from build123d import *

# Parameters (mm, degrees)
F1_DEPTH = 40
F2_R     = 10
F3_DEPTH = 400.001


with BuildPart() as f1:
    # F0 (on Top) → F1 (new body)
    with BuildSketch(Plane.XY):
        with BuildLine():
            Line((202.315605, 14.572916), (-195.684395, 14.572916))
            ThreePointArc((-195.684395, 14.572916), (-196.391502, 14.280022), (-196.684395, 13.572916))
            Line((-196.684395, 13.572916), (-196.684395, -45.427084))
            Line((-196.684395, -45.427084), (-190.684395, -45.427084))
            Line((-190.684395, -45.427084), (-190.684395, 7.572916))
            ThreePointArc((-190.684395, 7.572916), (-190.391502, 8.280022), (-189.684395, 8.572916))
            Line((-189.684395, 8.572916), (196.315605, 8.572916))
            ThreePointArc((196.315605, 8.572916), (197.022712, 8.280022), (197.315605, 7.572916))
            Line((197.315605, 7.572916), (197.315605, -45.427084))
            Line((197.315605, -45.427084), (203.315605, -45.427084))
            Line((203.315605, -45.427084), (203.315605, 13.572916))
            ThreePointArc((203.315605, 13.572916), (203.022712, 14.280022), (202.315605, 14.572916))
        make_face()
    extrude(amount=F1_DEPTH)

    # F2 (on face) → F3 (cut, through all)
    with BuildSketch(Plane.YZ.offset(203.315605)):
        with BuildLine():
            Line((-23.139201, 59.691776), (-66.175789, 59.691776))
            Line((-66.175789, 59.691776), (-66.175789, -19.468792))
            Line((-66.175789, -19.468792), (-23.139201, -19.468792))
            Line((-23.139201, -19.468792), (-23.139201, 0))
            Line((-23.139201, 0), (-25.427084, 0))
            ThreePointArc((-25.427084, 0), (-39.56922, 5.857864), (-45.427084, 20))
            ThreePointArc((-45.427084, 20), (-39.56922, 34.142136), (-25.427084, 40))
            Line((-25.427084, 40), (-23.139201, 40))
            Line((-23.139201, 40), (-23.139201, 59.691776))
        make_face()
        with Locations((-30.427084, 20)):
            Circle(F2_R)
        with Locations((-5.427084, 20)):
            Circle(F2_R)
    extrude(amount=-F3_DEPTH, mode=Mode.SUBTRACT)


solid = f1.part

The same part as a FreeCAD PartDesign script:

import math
import FreeCAD as App
import Part
import Sketcher
from FreeCAD import Vector
Q = App.Units.Quantity

doc = App.newDocument("Part")
body = doc.addObject("PartDesign::Body", "Body")

# Sketch on XY plane
sketch1 = body.newObject("Sketcher::SketchObject", "Sketch")
sketch1.AttachmentSupport = (doc.getObject("XY_Plane"), [""])
sketch1.MapMode = "FlatFace"
sketch1.addGeometry([
    Part.LineSegment(Vector(202.315605, 14.572916, 0), Vector(-195.684395, 14.572916, 0)),  # 0
    Part.ArcOfCircle(Part.Circle(Vector(-195.684394, 13.572915, 0), Vector(0, 0, 1), 1.000001), math.radians(90.000055), math.radians(179.999945)),  # 1
    Part.LineSegment(Vector(-196.684395, 13.572916, 0), Vector(-196.684395, -45.427084, 0)),  # 2
    Part.LineSegment(Vector(-196.684395, -45.427084, 0), Vector(-190.684395, -45.427084, 0)),  # 3
    Part.LineSegment(Vector(-190.684395, -45.427084, 0), Vector(-190.684395, 7.572916, 0)),  # 4
    Part.ArcOfCircle(Part.Circle(Vector(-189.684394, 7.572915, 0), Vector(0, 0, 1), 1.000001), math.radians(90.000055), math.radians(179.999945)),  # 5
    Part.LineSegment(Vector(-189.684395, 8.572916, 0), Vector(196.315605, 8.572916, 0)),  # 6
    Part.ArcOfCircle(Part.Circle(Vector(196.315604, 7.572915, 0), Vector(0, 0, 1), 1.000001), math.radians(0.000055), math.radians(89.999945)),  # 7
    Part.LineSegment(Vector(197.315605, 7.572916, 0), Vector(197.315605, -45.427084, 0)),  # 8
    Part.LineSegment(Vector(197.315605, -45.427084, 0), Vector(203.315605, -45.427084, 0)),  # 9
    Part.LineSegment(Vector(203.315605, -45.427084, 0), Vector(203.315605, 13.572916, 0)),  # 10
    Part.ArcOfCircle(Part.Circle(Vector(202.315604, 13.572915, 0), Vector(0, 0, 1), 1.000001), math.radians(0.000055), math.radians(89.999945)),  # 11
], False)
sketch1.addConstraint([
    Sketcher.Constraint("Tangent", 0, 2, 1, 1),
    Sketcher.Constraint("Tangent", 1, 2, 2, 1),
    Sketcher.Constraint("Coincident", 2, 2, 3, 1),
    Sketcher.Constraint("Coincident", 3, 2, 4, 1),
    Sketcher.Constraint("Tangent", 4, 2, 5, 2),
    Sketcher.Constraint("Tangent", 5, 1, 6, 1),
    Sketcher.Constraint("Tangent", 6, 2, 7, 2),
    Sketcher.Constraint("Tangent", 7, 1, 8, 1),
    Sketcher.Constraint("Coincident", 8, 2, 9, 1),
    Sketcher.Constraint("Coincident", 9, 2, 10, 1),
    Sketcher.Constraint("Tangent", 10, 2, 11, 1),
    Sketcher.Constraint("Tangent", 11, 2, 0, 1),
    Sketcher.Constraint("Horizontal", 0),
    Sketcher.Constraint("Vertical", 2),
    Sketcher.Constraint("Horizontal", 3),
    Sketcher.Constraint("Vertical", 4),
    Sketcher.Constraint("Horizontal", 6),
    Sketcher.Constraint("Vertical", 8),
    Sketcher.Constraint("Horizontal", 9),
    Sketcher.Constraint("Vertical", 10),
    Sketcher.Constraint("Equal", 1, 5),
    Sketcher.Constraint("Equal", 5, 7),
    Sketcher.Constraint("Equal", 7, 11),
    Sketcher.Constraint("Horizontal", 3, 2, 8, 2),
    Sketcher.Constraint("Equal", 3, 9),
    Sketcher.Constraint("Radius", 1, Q("1.000001 mm")),
    Sketcher.Constraint("DistanceX", 0, 2, 0, 1, Q("398 mm")),
    Sketcher.Constraint("DistanceX", 3, 1, 3, 2, Q("6 mm")),
    Sketcher.Constraint("DistanceY", 2, 2, 2, 1, Q("59 mm")),
    Sketcher.Constraint("DistanceY", 4, 1, 4, 2, Q("53 mm")),
    Sketcher.Constraint("DistanceX", 1, 3, -1, 1, Q("195.684394 mm")),
    Sketcher.Constraint("DistanceY", -1, 1, 1, 3, Q("13.572915 mm")),
])
pad1 = body.newObject("PartDesign::Pad", "Pad")
pad1.Profile = sketch1
pad1.Length = 40

# Sketch on YZ plane
sketch2 = body.newObject("Sketcher::SketchObject", "Sketch001")
sketch2.AttachmentSupport = (doc.getObject("YZ_Plane"), [""])
sketch2.MapMode = "FlatFace"
sketch2.AttachmentOffset = App.Placement(Vector(0, 0, 203.315605), App.Rotation())
sketch2.addGeometry([
    Part.LineSegment(Vector(-23.139201, 59.691776, 0), Vector(-66.175789, 59.691776, 0)),  # 0
    Part.LineSegment(Vector(-66.175789, 59.691776, 0), Vector(-66.175789, -19.468792, 0)),  # 1
    Part.LineSegment(Vector(-66.175789, -19.468792, 0), Vector(-23.139201, -19.468792, 0)),  # 2
    Part.LineSegment(Vector(-23.139201, -19.468792, 0), Vector(-23.139201, 0, 0)),  # 3
    Part.LineSegment(Vector(-23.139201, 0, 0), Vector(-25.427084, 0, 0)),  # 4
    Part.ArcOfCircle(Part.Circle(Vector(-25.427085, 19.999999, 0), Vector(0, 0, 1), 19.999999), math.radians(179.999996), math.radians(270.000004)),  # 5
    Part.ArcOfCircle(Part.Circle(Vector(-25.427085, 20.000001, 0), Vector(0, 0, 1), 19.999999), math.radians(89.999996), math.radians(180.000004)),  # 6
    Part.LineSegment(Vector(-25.427084, 40, 0), Vector(-23.139201, 40, 0)),  # 7
    Part.LineSegment(Vector(-23.139201, 40, 0), Vector(-23.139201, 59.691776, 0)),  # 8
    Part.Circle(Vector(-30.427084, 20, 0), Vector(0, 0, 1), 10),  # 9
    Part.Circle(Vector(-5.427084, 20, 0), Vector(0, 0, 1), 10),  # 10
], False)
sketch2.addConstraint([
    Sketcher.Constraint("Coincident", 0, 2, 1, 1),
    Sketcher.Constraint("Coincident", 1, 2, 2, 1),
    Sketcher.Constraint("Coincident", 2, 2, 3, 1),
    Sketcher.Constraint("Coincident", 3, 2, 4, 1),
    Sketcher.Constraint("Tangent", 4, 2, 5, 2),
    Sketcher.Constraint("Tangent", 5, 1, 6, 2),
    Sketcher.Constraint("Tangent", 6, 1, 7, 1),
    Sketcher.Constraint("Coincident", 7, 2, 8, 1),
    Sketcher.Constraint("Coincident", 8, 2, 0, 1),
    Sketcher.Constraint("Horizontal", 0),
    Sketcher.Constraint("Vertical", 1),
    Sketcher.Constraint("Horizontal", 2),
    Sketcher.Constraint("Vertical", 3),
    Sketcher.Constraint("Horizontal", 4),
    Sketcher.Constraint("Horizontal", 7),
    Sketcher.Constraint("Vertical", 8),
    Sketcher.Constraint("Equal", 5, 6),
    Sketcher.Constraint("Equal", 9, 10),
    Sketcher.Constraint("PointOnObject", 3, 2, -1),
    Sketcher.Constraint("Horizontal", 6, 3, 9, 3),
    Sketcher.Constraint("Horizontal", 9, 3, 10, 3),
    Sketcher.Constraint("Horizontal", 10, 3, 5, 1),
    Sketcher.Constraint("Vertical", 3, 2, 7, 2),
    Sketcher.Constraint("Diameter", 9, Q("20 mm")),
    Sketcher.Constraint("Radius", 5, Q("19.999999 mm")),
    Sketcher.Constraint("DistanceX", 9, 3, 5, 3, Q("4.999999 mm")),
    Sketcher.Constraint("DistanceX", 5, 3, 10, 3, Q("20.000001 mm")),
    Sketcher.Constraint("DistanceX", 2, 2, -1, 1, Q("23.139201 mm")),
    Sketcher.Constraint("DistanceX", 0, 2, 0, 1, Q("43.036588 mm")),
    Sketcher.Constraint("DistanceX", 4, 2, 4, 1, Q("2.287883 mm")),
    Sketcher.Constraint("DistanceY", 1, 2, 1, 1, Q("79.160568 mm")),
    Sketcher.Constraint("DistanceY", 3, 1, 3, 2, Q("19.468792 mm")),
])
pocket1 = body.newObject("PartDesign::Pocket", "Pocket")
pocket1.Profile = sketch2
pocket1.Type = "ThroughAll"

doc.recompute()
